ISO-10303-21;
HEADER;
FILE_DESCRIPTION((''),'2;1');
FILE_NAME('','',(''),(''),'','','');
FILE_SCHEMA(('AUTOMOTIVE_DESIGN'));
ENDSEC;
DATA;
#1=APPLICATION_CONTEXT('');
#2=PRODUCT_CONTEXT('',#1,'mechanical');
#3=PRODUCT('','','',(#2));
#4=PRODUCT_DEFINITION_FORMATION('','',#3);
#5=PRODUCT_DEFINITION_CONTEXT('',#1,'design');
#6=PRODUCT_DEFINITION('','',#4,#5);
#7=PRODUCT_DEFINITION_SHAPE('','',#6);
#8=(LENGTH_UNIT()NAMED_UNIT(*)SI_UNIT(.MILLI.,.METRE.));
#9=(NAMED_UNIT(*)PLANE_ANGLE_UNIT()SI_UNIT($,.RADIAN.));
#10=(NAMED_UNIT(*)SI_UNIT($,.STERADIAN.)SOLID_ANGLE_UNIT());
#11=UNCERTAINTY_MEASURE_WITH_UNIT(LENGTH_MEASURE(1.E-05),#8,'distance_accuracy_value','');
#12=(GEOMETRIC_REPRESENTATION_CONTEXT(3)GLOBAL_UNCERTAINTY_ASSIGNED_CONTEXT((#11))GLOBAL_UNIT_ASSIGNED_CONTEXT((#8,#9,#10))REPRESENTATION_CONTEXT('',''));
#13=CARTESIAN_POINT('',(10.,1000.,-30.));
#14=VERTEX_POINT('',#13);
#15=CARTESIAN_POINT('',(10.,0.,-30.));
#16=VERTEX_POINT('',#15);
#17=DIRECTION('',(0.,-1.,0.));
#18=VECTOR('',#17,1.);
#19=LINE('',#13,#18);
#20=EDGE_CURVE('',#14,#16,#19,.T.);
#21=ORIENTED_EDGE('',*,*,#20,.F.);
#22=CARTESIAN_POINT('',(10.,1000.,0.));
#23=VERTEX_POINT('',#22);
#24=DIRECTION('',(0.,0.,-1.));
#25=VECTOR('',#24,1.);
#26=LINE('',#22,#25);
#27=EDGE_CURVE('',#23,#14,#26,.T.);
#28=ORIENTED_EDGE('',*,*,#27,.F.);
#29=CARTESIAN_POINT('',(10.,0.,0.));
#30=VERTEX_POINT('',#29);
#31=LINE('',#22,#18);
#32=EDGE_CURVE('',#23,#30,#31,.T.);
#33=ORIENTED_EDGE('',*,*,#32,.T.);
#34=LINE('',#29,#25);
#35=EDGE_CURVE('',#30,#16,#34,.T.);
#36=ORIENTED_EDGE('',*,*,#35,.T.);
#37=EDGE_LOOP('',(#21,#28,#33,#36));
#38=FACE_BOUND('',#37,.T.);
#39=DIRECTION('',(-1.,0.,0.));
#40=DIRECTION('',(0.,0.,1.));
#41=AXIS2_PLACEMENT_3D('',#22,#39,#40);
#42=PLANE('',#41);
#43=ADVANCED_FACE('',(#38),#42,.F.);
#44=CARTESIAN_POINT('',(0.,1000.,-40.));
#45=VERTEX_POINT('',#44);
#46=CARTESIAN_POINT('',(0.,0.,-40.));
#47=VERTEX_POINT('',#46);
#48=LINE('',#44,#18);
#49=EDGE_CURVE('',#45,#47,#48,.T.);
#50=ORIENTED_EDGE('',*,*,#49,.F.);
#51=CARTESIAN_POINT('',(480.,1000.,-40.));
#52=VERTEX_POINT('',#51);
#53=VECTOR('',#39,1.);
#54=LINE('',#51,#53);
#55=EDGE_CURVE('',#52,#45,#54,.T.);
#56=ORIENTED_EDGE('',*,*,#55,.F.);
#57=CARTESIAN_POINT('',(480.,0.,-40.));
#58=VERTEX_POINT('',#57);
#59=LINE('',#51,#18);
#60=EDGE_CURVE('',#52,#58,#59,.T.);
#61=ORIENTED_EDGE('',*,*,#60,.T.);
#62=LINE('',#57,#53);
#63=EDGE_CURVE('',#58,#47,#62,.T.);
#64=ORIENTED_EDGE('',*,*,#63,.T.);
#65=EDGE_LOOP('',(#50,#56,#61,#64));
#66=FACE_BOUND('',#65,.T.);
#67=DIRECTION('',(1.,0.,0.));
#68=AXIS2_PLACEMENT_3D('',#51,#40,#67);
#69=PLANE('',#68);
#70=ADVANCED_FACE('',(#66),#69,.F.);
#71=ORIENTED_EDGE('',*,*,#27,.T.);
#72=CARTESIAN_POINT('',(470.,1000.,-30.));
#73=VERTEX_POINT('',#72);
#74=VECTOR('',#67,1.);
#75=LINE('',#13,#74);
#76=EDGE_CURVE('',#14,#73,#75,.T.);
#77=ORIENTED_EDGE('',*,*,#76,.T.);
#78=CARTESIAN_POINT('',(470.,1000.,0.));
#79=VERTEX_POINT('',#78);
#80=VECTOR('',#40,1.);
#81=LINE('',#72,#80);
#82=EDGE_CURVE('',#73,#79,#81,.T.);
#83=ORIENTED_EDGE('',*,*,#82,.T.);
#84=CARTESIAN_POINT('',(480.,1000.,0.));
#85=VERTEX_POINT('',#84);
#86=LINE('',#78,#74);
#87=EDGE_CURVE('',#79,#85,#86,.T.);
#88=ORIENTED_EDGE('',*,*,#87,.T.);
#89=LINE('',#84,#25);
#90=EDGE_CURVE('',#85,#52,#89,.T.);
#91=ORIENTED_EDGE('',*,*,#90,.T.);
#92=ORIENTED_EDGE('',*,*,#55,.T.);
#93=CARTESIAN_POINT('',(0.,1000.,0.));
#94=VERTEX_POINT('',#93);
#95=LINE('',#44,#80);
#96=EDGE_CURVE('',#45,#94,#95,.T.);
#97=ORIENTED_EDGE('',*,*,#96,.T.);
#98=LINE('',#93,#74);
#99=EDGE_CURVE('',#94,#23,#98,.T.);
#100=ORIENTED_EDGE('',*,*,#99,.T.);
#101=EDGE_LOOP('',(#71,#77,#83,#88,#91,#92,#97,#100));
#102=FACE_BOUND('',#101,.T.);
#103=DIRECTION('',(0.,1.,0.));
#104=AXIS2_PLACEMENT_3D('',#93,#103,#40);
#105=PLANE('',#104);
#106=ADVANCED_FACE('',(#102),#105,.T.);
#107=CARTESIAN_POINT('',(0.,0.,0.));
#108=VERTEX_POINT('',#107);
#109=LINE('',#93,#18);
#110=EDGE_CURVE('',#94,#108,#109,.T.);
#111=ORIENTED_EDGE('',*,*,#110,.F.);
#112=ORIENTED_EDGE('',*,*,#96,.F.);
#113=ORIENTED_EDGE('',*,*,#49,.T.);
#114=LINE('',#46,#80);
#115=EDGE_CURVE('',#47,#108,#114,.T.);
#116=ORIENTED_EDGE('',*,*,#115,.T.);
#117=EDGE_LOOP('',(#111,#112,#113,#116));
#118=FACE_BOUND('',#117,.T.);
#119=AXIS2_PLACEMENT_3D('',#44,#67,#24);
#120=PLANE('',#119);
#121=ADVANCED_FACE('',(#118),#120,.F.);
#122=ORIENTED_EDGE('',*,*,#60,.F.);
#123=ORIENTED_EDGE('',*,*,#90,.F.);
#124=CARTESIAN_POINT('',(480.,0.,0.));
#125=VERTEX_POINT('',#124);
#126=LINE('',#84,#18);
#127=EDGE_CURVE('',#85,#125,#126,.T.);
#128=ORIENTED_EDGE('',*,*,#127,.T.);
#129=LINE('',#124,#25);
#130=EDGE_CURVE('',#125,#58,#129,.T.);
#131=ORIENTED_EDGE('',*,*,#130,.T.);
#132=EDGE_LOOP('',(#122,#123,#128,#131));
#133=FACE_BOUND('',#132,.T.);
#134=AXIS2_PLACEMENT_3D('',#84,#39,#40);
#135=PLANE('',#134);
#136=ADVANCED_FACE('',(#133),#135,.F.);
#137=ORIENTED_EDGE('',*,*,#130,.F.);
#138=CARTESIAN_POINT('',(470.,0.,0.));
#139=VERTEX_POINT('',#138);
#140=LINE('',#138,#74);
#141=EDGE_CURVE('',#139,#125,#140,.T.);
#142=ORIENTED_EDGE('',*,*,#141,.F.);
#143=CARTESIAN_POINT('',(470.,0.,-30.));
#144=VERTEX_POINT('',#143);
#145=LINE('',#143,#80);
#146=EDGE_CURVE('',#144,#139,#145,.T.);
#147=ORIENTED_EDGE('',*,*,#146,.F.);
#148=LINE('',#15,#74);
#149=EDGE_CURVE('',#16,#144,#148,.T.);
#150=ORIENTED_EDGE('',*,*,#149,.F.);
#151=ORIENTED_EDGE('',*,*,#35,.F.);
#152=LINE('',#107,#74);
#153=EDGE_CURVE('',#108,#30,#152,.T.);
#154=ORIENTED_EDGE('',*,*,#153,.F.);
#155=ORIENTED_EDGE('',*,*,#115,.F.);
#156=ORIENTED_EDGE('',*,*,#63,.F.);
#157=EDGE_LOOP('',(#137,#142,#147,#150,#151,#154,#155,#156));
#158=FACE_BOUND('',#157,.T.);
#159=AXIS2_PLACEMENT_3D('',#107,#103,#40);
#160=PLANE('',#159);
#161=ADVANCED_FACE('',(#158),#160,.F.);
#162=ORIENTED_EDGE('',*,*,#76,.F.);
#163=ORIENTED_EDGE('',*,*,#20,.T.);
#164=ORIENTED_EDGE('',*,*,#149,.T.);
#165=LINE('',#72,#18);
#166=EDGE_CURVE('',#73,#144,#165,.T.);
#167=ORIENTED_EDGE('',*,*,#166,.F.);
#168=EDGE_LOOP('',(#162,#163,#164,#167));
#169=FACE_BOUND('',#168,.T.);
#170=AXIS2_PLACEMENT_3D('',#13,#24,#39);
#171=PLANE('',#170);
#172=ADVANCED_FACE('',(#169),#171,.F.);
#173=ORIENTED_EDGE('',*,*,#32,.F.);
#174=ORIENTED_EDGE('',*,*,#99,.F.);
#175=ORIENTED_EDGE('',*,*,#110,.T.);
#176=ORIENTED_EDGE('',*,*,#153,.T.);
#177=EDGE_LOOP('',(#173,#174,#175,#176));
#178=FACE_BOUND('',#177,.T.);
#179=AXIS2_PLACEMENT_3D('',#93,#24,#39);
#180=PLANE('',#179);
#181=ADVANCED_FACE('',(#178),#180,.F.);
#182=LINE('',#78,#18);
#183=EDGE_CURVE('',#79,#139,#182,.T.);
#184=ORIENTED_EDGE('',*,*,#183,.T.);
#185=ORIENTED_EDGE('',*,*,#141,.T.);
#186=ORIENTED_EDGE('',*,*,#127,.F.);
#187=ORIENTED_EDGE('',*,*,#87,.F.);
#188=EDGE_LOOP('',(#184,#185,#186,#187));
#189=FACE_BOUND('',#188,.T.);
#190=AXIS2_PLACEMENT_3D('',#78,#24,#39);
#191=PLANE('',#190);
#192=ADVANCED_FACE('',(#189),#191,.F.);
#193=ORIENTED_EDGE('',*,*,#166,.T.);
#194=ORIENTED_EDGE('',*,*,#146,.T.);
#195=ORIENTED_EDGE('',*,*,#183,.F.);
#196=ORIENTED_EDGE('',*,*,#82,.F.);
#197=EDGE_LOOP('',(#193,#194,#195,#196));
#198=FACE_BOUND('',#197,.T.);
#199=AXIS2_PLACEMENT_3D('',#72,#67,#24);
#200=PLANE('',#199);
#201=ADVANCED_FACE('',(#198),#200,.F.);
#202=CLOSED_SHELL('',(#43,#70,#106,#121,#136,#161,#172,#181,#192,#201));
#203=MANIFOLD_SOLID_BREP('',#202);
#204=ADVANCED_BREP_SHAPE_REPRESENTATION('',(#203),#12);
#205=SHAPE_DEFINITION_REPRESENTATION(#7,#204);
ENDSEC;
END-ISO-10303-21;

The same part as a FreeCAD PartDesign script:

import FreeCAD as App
import Part
import Sketcher
Q = App.Units.Quantity

doc = App.newDocument("Part")
body = doc.addObject("PartDesign::Body", "Body")

# Sketch on XZ plane
sketch1 = body.newObject("Sketcher::SketchObject", "Sketch")
sketch1.AttachmentSupport = (doc.getObject("XZ_Plane"), [""])
sketch1.MapMode = "FlatFace"
sketch1.addGeometry([
    Part.LineSegment(App.Vector(0, 0, 0), App.Vector(10, 0, 0)),  # 0
    Part.LineSegment(App.Vector(10, 0, 0), App.Vector(10, -30, 0)),  # 1
    Part.LineSegment(App.Vector(10, -30, 0), App.Vector(470, -30, 0)),  # 2
    Part.LineSegment(App.Vector(470, -30, 0), App.Vector(470, 0, 0)),  # 3
    Part.LineSegment(App.Vector(470, 0, 0), App.Vector(480, 0, 0)),  # 4
    Part.LineSegment(App.Vector(480, 0, 0), App.Vector(480, -40, 0)),  # 5
    Part.LineSegment(App.Vector(480, -40, 0), App.Vector(0, -40, 0)),  # 6
    Part.LineSegment(App.Vector(0, -40, 0), App.Vector(0, 0, 0)),  # 7
], False)
sketch1.addConstraint([
    Sketcher.Constraint("Coincident", 0, 2, 1, 1),
    Sketcher.Constraint("Coincident", 1, 2, 2, 1),
    Sketcher.Constraint("Coincident", 2, 2, 3, 1),
    Sketcher.Constraint("Coincident", 3, 2, 4, 1),
    Sketcher.Constraint("Coincident", 4, 2, 5, 1),
    Sketcher.Constraint("Coincident", 5, 2, 6, 1),
    Sketcher.Constraint("Coincident", 6, 2, 7, 1),
    Sketcher.Constraint("Coincident", 7, 2, 0, 1),
    Sketcher.Constraint("Horizontal", 0),
    Sketcher.Constraint("Vertical", 1),
    Sketcher.Constraint("Horizontal", 2),
    Sketcher.Constraint("Vertical", 3),
    Sketcher.Constraint("Horizontal", 4),
    Sketcher.Constraint("Vertical", 5),
    Sketcher.Constraint("Horizontal", 6),
    Sketcher.Constraint("Vertical", 7),
    Sketcher.Constraint("Coincident", 7, 2, -1, 1),
    Sketcher.Constraint("PointOnObject", 3, 2, -1),
    Sketcher.Constraint("Equal", 0, 4),
    Sketcher.Constraint("DistanceX", 0, 1, 0, 2, Q("10 mm")),
    Sketcher.Constraint("DistanceX", 2, 1, 2, 2, Q("460 mm")),
    Sketcher.Constraint("DistanceY", 1, 2, 1, 1, Q("30 mm")),
    Sketcher.Constraint("DistanceY", 5, 2, 5, 1, Q("40 mm")),
])
pad1 = body.newObject("PartDesign::Pad", "Pad")
pad1.Profile = sketch1
pad1.Length = 1000
pad1.Reversed = True

doc.recompute()
